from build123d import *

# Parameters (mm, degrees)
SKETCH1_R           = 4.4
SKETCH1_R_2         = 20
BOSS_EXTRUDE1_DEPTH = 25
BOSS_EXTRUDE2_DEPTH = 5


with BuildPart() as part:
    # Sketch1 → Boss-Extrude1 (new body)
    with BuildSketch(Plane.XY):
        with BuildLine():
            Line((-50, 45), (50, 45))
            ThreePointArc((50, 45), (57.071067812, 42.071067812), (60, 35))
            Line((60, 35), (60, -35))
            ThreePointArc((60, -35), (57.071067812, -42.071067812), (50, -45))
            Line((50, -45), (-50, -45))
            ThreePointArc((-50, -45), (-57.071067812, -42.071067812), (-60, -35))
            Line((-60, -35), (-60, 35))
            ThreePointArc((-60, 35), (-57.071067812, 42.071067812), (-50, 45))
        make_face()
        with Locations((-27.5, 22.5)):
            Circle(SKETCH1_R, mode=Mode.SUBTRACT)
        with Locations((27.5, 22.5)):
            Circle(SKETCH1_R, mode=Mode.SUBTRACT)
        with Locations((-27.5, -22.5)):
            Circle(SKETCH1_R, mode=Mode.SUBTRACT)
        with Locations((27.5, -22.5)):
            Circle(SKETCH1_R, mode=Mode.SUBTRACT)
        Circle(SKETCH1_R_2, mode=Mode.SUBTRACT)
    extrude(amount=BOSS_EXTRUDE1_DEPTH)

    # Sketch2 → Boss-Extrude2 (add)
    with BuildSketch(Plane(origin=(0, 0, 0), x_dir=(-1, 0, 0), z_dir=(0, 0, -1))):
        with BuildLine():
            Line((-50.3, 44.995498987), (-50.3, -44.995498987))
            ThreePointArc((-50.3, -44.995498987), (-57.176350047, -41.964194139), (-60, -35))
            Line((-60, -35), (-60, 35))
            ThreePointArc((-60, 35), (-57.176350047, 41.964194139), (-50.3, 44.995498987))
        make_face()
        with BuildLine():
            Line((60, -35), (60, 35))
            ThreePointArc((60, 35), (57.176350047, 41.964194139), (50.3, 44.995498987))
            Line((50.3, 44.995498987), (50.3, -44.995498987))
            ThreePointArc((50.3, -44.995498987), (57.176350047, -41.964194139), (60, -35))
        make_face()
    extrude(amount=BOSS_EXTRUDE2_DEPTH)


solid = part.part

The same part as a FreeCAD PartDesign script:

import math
import FreeCAD as App
import Part
import Sketcher
Q = App.Units.Quantity

doc = App.newDocument("Part")
params = doc.addObject("Spreadsheet::Sheet", "Params")
for row, (alias, value) in enumerate([
    ("sketch1_diameter", "40 mm"),
    ("sketch1_radius", "10 mm"),
    ("sketch1_diameter2", "8.8 mm"),
    ("sketch1_width", "100 mm"),
    ("sketch1_height", "70 mm"),
    ("pad1_length", "25 mm"),
    ("sketch2_radius", "10 mm"),
    ("sketch2_height", "70 mm"),
    ("pad2_length", "5 mm"),
], start=1):
    params.set(f"A{row}", alias)
    params.set(f"B{row}", "=" + value)
    params.setAlias(f"B{row}", alias)

body = doc.addObject("PartDesign::Body", "Body")

# Sketch on XY plane
sketch1 = body.newObject("Sketcher::SketchObject", "Sketch")
sketch1.AttachmentSupport = (doc.getObject("XY_Plane"), [""])
sketch1.MapMode = "FlatFace"
sketch1.addGeometry(Part.LineSegment(App.Vector(50, 45, 0), App.Vector(-50, 45, 0)), False)
sketch1.addGeometry(Part.ArcOfCircle(Part.Circle(App.Vector(-50, 35, 0), App.Vector(0, 0, 1), 10), math.radians(90), math.radians(180)), False)
sketch1.addGeometry(Part.LineSegment(App.Vector(-60, 35, 0), App.Vector(-60, -35, 0)), False)
sketch1.addGeometry(Part.ArcOfCircle(Part.Circle(App.Vector(-50, -35, 0), App.Vector(0, 0, 1), 10), math.radians(180), math.radians(270)), False)
sketch1.addGeometry(Part.LineSegment(App.Vector(-50, -45, 0), App.Vector(50, -45, 0)), False)
sketch1.addGeometry(Part.ArcOfCircle(Part.Circle(App.Vector(50, -35, 0), App.Vector(0, 0, 1), 10), math.radians(-90), math.radians(0)), False)
sketch1.addGeometry(Part.LineSegment(App.Vector(60, -35, 0), App.Vector(60, 35, 0)), False)
sketch1.addGeometry(Part.ArcOfCircle(Part.Circle(App.Vector(50, 35, 0), App.Vector(0, 0, 1), 10), math.radians(0), math.radians(90)), False)
sketch1.addGeometry(Part.Circle(App.Vector(27.5, -22.5, 0), App.Vector(0, 0, 1), 4.4), False)
sketch1.addGeometry(Part.Circle(App.Vector(-27.5, -22.5, 0), App.Vector(0, 0, 1), 4.4), False)
sketch1.addGeometry(Part.Circle(App.Vector(27.5, 22.5, 0), App.Vector(0, 0, 1), 4.4), False)
sketch1.addGeometry(Part.Circle(App.Vector(0, 0, 0), App.Vector(0, 0, 1), 20), False)
sketch1.addGeometry(Part.Circle(App.Vector(-27.5, 22.5, 0), App.Vector(0, 0, 1), 4.4), False)
sketch1.addConstraint(Sketcher.Constraint("Tangent", 0, 2, 1, 1))
sketch1.addConstraint(Sketcher.Constraint("Tangent", 1, 2, 2, 1))
sketch1.addConstraint(Sketcher.Constraint("Tangent", 2, 2, 3, 1))
sketch1.addConstraint(Sketcher.Constraint("Tangent", 3, 2, 4, 1))
sketch1.addConstraint(Sketcher.Constraint("Tangent", 4, 2, 5, 1))
sketch1.addConstraint(Sketcher.Constraint("Tangent", 5, 2, 6, 1))
sketch1.addConstraint(Sketcher.Constraint("Tangent", 6, 2, 7, 1))
sketch1.addConstraint(Sketcher.Constraint("Tangent", 7, 2, 0, 1))
sketch1.addConstraint(Sketcher.Constraint("Horizontal", 0))
sketch1.addConstraint(Sketcher.Constraint("Vertical", 2))
sketch1.addConstraint(Sketcher.Constraint("Horizontal", 4))
sketch1.addConstraint(Sketcher.Constraint("Vertical", 6))
sketch1.addConstraint(Sketcher.Constraint("Coincident", 11, 3, -1, 1))
sketch1.addConstraint(Sketcher.Constraint("Equal", 1, 3))
sketch1.addConstraint(Sketcher.Constraint("Equal", 3, 5))
sketch1.addConstraint(Sketcher.Constraint("Equal", 5, 7))
sketch1.addConstraint(Sketcher.Constraint("Equal", 8, 9))
sketch1.addConstraint(Sketcher.Constraint("Equal", 9, 10))
sketch1.addConstraint(Sketcher.Constraint("Equal", 10, 12))
sketch1.addConstraint(Sketcher.Constraint("Symmetric", 1, 3, 5, 3, -1, 1))
sketch1.addConstraint(Sketcher.Constraint("Symmetric", 9, 3, 10, 3, -1, 1))
sketch1.addConstraint(Sketcher.Constraint("Symmetric", 8, 3, 12, 3, -1, 1))
sketch1.addConstraint(Sketcher.Constraint("Symmetric", 8, 3, 9, 3, -2))
sketch1.addConstraint(Sketcher.Constraint("Diameter", 11, Q("40 mm")))
sketch1.addConstraint(Sketcher.Constraint("Radius", 1, Q("10 mm")))
sketch1.addConstraint(Sketcher.Constraint("Diameter", 8, Q("8.8 mm")))
sketch1.addConstraint(Sketcher.Constraint("DistanceX", 0, 2, 0, 1, Q("100 mm")))
sketch1.addConstraint(Sketcher.Constraint("DistanceY", 2, 2, 2, 1, Q("70 mm")))
sketch1.addConstraint(Sketcher.Constraint("DistanceX", 9, 3, 8, 3, Q("55 mm")))
sketch1.addConstraint(Sketcher.Constraint("DistanceY", 8, 3, 10, 3, Q("45 mm")))
sketch1.setExpression("Constraints[23]", "Params.sketch1_diameter")
sketch1.setExpression("Constraints[24]", "Params.sketch1_radius")
sketch1.setExpression("Constraints[25]", "Params.sketch1_diameter2")
sketch1.setExpression("Constraints[26]", "Params.sketch1_width")
sketch1.setExpression("Constraints[27]", "Params.sketch1_height")
pad1 = body.newObject("PartDesign::Pad", "Pad")
pad1.Profile = sketch1
pad1.setExpression("Length", "Params.pad1_length")

# Sketch on XY plane
sketch2 = body.newObject("Sketcher::SketchObject", "Sketch001")
sketch2.AttachmentSupport = (doc.getObject("XY_Plane"), [""])
sketch2.MapMode = "FlatFace"
sketch2.addGeometry(Part.LineSegment(App.Vector(50, -45, 0), App.Vector(50, 45, 0)), False)
sketch2.addGeometry(Part.ArcOfCircle(Part.Circle(App.Vector(50, 35, 0), App.Vector(0, 0, 1), 10), math.radians(0), math.radians(88)), False)
sketch2.addGeometry(Part.LineSegment(App.Vector(60, 35, 0), App.Vector(60, -35, 0)), False)
sketch2.addGeometry(Part.ArcOfCircle(Part.Circle(App.Vector(50, -35, 0), App.Vector(0, 0, 1), 10), math.radians(-88), math.radians(0)), False)
sketch2.addGeometry(Part.LineSegment(App.Vector(-60, -35, 0), App.Vector(-60, 35, 0)), False)
sketch2.addGeometry(Part.ArcOfCircle(Part.Circle(App.Vector(-50, 35, 0), App.Vector(0, 0, 1), 10), math.radians(92), math.radians(180)), False)
sketch2.addGeometry(Part.LineSegment(App.Vector(-50, 45, 0), App.Vector(-50, -45, 0)), False)
sketch2.addGeometry(Part.ArcOfCircle(Part.Circle(App.Vector(-50, -35, 0), App.Vector(0, 0, 1), 10), math.radians(180), math.radians(268)), False)
sketch2.addConstraint(Sketcher.Constraint("Coincident", 0, 2, 1, 2))
sketch2.addConstraint(Sketcher.Constraint("Tangent", 1, 1, 2, 1))
sketch2.addConstraint(Sketcher.Constraint("Tangent", 2, 2, 3, 2))
sketch2.addConstraint(Sketcher.Constraint("Coincident", 3, 1, 0, 1))
sketch2.addConstraint(Sketcher.Constraint("Tangent", 4, 2, 5, 2))
sketch2.addConstraint(Sketcher.Constraint("Coincident", 5, 1, 6, 1))
sketch2.addConstraint(Sketcher.Constraint("Coincident", 6, 2, 7, 2))
sketch2.addConstraint(Sketcher.Constraint("Tangent", 7, 1, 4, 1))
sketch2.addConstraint(Sketcher.Constraint("Vertical", 0))
sketch2.addConstraint(Sketcher.Constraint("Vertical", 2))
sketch2.addConstraint(Sketcher.Constraint("Vertical", 4))
sketch2.addConstraint(Sketcher.Constraint("Vertical", 6))
sketch2.addConstraint(Sketcher.Constraint("Equal", 1, 3))
sketch2.addConstraint(Sketcher.Constraint("Equal", 3, 5))
sketch2.addConstraint(Sketcher.Constraint("Equal", 5, 7))
sketch2.addConstraint(Sketcher.Constraint("Symmetric", 3, 3, 5, 3, -1, 1))
sketch2.addConstraint(Sketcher.Constraint("Symmetric", 0, 2, 6, 2, -1, 1))
sketch2.addConstraint(Sketcher.Constraint("Horizontal", 1, 3, 5, 3))
sketch2.addConstraint(Sketcher.Constraint("Radius", 1, Q("10 mm")))
sketch2.addConstraint(Sketcher.Constraint("DistanceY", 2, 2, 2, 1, Q("70 mm")))
sketch2.addConstraint(Sketcher.Constraint("DistanceX", -1, 1, 1, 3, Q("50 mm")))
sketch2.addConstraint(Sketcher.Constraint("DistanceX", -1, 1, 0, 2, Q("50.3 mm")))
sketch2.setExpression("Constraints[18]", "Params.sketch2_radius")
sketch2.setExpression("Constraints[19]", "Params.sketch2_height")
pad2 = body.newObject("PartDesign::Pad", "Pad001")
pad2.Profile = sketch2
pad2.setExpression("Length", "Params.pad2_length")
pad2.Reversed = True

doc.recompute()
